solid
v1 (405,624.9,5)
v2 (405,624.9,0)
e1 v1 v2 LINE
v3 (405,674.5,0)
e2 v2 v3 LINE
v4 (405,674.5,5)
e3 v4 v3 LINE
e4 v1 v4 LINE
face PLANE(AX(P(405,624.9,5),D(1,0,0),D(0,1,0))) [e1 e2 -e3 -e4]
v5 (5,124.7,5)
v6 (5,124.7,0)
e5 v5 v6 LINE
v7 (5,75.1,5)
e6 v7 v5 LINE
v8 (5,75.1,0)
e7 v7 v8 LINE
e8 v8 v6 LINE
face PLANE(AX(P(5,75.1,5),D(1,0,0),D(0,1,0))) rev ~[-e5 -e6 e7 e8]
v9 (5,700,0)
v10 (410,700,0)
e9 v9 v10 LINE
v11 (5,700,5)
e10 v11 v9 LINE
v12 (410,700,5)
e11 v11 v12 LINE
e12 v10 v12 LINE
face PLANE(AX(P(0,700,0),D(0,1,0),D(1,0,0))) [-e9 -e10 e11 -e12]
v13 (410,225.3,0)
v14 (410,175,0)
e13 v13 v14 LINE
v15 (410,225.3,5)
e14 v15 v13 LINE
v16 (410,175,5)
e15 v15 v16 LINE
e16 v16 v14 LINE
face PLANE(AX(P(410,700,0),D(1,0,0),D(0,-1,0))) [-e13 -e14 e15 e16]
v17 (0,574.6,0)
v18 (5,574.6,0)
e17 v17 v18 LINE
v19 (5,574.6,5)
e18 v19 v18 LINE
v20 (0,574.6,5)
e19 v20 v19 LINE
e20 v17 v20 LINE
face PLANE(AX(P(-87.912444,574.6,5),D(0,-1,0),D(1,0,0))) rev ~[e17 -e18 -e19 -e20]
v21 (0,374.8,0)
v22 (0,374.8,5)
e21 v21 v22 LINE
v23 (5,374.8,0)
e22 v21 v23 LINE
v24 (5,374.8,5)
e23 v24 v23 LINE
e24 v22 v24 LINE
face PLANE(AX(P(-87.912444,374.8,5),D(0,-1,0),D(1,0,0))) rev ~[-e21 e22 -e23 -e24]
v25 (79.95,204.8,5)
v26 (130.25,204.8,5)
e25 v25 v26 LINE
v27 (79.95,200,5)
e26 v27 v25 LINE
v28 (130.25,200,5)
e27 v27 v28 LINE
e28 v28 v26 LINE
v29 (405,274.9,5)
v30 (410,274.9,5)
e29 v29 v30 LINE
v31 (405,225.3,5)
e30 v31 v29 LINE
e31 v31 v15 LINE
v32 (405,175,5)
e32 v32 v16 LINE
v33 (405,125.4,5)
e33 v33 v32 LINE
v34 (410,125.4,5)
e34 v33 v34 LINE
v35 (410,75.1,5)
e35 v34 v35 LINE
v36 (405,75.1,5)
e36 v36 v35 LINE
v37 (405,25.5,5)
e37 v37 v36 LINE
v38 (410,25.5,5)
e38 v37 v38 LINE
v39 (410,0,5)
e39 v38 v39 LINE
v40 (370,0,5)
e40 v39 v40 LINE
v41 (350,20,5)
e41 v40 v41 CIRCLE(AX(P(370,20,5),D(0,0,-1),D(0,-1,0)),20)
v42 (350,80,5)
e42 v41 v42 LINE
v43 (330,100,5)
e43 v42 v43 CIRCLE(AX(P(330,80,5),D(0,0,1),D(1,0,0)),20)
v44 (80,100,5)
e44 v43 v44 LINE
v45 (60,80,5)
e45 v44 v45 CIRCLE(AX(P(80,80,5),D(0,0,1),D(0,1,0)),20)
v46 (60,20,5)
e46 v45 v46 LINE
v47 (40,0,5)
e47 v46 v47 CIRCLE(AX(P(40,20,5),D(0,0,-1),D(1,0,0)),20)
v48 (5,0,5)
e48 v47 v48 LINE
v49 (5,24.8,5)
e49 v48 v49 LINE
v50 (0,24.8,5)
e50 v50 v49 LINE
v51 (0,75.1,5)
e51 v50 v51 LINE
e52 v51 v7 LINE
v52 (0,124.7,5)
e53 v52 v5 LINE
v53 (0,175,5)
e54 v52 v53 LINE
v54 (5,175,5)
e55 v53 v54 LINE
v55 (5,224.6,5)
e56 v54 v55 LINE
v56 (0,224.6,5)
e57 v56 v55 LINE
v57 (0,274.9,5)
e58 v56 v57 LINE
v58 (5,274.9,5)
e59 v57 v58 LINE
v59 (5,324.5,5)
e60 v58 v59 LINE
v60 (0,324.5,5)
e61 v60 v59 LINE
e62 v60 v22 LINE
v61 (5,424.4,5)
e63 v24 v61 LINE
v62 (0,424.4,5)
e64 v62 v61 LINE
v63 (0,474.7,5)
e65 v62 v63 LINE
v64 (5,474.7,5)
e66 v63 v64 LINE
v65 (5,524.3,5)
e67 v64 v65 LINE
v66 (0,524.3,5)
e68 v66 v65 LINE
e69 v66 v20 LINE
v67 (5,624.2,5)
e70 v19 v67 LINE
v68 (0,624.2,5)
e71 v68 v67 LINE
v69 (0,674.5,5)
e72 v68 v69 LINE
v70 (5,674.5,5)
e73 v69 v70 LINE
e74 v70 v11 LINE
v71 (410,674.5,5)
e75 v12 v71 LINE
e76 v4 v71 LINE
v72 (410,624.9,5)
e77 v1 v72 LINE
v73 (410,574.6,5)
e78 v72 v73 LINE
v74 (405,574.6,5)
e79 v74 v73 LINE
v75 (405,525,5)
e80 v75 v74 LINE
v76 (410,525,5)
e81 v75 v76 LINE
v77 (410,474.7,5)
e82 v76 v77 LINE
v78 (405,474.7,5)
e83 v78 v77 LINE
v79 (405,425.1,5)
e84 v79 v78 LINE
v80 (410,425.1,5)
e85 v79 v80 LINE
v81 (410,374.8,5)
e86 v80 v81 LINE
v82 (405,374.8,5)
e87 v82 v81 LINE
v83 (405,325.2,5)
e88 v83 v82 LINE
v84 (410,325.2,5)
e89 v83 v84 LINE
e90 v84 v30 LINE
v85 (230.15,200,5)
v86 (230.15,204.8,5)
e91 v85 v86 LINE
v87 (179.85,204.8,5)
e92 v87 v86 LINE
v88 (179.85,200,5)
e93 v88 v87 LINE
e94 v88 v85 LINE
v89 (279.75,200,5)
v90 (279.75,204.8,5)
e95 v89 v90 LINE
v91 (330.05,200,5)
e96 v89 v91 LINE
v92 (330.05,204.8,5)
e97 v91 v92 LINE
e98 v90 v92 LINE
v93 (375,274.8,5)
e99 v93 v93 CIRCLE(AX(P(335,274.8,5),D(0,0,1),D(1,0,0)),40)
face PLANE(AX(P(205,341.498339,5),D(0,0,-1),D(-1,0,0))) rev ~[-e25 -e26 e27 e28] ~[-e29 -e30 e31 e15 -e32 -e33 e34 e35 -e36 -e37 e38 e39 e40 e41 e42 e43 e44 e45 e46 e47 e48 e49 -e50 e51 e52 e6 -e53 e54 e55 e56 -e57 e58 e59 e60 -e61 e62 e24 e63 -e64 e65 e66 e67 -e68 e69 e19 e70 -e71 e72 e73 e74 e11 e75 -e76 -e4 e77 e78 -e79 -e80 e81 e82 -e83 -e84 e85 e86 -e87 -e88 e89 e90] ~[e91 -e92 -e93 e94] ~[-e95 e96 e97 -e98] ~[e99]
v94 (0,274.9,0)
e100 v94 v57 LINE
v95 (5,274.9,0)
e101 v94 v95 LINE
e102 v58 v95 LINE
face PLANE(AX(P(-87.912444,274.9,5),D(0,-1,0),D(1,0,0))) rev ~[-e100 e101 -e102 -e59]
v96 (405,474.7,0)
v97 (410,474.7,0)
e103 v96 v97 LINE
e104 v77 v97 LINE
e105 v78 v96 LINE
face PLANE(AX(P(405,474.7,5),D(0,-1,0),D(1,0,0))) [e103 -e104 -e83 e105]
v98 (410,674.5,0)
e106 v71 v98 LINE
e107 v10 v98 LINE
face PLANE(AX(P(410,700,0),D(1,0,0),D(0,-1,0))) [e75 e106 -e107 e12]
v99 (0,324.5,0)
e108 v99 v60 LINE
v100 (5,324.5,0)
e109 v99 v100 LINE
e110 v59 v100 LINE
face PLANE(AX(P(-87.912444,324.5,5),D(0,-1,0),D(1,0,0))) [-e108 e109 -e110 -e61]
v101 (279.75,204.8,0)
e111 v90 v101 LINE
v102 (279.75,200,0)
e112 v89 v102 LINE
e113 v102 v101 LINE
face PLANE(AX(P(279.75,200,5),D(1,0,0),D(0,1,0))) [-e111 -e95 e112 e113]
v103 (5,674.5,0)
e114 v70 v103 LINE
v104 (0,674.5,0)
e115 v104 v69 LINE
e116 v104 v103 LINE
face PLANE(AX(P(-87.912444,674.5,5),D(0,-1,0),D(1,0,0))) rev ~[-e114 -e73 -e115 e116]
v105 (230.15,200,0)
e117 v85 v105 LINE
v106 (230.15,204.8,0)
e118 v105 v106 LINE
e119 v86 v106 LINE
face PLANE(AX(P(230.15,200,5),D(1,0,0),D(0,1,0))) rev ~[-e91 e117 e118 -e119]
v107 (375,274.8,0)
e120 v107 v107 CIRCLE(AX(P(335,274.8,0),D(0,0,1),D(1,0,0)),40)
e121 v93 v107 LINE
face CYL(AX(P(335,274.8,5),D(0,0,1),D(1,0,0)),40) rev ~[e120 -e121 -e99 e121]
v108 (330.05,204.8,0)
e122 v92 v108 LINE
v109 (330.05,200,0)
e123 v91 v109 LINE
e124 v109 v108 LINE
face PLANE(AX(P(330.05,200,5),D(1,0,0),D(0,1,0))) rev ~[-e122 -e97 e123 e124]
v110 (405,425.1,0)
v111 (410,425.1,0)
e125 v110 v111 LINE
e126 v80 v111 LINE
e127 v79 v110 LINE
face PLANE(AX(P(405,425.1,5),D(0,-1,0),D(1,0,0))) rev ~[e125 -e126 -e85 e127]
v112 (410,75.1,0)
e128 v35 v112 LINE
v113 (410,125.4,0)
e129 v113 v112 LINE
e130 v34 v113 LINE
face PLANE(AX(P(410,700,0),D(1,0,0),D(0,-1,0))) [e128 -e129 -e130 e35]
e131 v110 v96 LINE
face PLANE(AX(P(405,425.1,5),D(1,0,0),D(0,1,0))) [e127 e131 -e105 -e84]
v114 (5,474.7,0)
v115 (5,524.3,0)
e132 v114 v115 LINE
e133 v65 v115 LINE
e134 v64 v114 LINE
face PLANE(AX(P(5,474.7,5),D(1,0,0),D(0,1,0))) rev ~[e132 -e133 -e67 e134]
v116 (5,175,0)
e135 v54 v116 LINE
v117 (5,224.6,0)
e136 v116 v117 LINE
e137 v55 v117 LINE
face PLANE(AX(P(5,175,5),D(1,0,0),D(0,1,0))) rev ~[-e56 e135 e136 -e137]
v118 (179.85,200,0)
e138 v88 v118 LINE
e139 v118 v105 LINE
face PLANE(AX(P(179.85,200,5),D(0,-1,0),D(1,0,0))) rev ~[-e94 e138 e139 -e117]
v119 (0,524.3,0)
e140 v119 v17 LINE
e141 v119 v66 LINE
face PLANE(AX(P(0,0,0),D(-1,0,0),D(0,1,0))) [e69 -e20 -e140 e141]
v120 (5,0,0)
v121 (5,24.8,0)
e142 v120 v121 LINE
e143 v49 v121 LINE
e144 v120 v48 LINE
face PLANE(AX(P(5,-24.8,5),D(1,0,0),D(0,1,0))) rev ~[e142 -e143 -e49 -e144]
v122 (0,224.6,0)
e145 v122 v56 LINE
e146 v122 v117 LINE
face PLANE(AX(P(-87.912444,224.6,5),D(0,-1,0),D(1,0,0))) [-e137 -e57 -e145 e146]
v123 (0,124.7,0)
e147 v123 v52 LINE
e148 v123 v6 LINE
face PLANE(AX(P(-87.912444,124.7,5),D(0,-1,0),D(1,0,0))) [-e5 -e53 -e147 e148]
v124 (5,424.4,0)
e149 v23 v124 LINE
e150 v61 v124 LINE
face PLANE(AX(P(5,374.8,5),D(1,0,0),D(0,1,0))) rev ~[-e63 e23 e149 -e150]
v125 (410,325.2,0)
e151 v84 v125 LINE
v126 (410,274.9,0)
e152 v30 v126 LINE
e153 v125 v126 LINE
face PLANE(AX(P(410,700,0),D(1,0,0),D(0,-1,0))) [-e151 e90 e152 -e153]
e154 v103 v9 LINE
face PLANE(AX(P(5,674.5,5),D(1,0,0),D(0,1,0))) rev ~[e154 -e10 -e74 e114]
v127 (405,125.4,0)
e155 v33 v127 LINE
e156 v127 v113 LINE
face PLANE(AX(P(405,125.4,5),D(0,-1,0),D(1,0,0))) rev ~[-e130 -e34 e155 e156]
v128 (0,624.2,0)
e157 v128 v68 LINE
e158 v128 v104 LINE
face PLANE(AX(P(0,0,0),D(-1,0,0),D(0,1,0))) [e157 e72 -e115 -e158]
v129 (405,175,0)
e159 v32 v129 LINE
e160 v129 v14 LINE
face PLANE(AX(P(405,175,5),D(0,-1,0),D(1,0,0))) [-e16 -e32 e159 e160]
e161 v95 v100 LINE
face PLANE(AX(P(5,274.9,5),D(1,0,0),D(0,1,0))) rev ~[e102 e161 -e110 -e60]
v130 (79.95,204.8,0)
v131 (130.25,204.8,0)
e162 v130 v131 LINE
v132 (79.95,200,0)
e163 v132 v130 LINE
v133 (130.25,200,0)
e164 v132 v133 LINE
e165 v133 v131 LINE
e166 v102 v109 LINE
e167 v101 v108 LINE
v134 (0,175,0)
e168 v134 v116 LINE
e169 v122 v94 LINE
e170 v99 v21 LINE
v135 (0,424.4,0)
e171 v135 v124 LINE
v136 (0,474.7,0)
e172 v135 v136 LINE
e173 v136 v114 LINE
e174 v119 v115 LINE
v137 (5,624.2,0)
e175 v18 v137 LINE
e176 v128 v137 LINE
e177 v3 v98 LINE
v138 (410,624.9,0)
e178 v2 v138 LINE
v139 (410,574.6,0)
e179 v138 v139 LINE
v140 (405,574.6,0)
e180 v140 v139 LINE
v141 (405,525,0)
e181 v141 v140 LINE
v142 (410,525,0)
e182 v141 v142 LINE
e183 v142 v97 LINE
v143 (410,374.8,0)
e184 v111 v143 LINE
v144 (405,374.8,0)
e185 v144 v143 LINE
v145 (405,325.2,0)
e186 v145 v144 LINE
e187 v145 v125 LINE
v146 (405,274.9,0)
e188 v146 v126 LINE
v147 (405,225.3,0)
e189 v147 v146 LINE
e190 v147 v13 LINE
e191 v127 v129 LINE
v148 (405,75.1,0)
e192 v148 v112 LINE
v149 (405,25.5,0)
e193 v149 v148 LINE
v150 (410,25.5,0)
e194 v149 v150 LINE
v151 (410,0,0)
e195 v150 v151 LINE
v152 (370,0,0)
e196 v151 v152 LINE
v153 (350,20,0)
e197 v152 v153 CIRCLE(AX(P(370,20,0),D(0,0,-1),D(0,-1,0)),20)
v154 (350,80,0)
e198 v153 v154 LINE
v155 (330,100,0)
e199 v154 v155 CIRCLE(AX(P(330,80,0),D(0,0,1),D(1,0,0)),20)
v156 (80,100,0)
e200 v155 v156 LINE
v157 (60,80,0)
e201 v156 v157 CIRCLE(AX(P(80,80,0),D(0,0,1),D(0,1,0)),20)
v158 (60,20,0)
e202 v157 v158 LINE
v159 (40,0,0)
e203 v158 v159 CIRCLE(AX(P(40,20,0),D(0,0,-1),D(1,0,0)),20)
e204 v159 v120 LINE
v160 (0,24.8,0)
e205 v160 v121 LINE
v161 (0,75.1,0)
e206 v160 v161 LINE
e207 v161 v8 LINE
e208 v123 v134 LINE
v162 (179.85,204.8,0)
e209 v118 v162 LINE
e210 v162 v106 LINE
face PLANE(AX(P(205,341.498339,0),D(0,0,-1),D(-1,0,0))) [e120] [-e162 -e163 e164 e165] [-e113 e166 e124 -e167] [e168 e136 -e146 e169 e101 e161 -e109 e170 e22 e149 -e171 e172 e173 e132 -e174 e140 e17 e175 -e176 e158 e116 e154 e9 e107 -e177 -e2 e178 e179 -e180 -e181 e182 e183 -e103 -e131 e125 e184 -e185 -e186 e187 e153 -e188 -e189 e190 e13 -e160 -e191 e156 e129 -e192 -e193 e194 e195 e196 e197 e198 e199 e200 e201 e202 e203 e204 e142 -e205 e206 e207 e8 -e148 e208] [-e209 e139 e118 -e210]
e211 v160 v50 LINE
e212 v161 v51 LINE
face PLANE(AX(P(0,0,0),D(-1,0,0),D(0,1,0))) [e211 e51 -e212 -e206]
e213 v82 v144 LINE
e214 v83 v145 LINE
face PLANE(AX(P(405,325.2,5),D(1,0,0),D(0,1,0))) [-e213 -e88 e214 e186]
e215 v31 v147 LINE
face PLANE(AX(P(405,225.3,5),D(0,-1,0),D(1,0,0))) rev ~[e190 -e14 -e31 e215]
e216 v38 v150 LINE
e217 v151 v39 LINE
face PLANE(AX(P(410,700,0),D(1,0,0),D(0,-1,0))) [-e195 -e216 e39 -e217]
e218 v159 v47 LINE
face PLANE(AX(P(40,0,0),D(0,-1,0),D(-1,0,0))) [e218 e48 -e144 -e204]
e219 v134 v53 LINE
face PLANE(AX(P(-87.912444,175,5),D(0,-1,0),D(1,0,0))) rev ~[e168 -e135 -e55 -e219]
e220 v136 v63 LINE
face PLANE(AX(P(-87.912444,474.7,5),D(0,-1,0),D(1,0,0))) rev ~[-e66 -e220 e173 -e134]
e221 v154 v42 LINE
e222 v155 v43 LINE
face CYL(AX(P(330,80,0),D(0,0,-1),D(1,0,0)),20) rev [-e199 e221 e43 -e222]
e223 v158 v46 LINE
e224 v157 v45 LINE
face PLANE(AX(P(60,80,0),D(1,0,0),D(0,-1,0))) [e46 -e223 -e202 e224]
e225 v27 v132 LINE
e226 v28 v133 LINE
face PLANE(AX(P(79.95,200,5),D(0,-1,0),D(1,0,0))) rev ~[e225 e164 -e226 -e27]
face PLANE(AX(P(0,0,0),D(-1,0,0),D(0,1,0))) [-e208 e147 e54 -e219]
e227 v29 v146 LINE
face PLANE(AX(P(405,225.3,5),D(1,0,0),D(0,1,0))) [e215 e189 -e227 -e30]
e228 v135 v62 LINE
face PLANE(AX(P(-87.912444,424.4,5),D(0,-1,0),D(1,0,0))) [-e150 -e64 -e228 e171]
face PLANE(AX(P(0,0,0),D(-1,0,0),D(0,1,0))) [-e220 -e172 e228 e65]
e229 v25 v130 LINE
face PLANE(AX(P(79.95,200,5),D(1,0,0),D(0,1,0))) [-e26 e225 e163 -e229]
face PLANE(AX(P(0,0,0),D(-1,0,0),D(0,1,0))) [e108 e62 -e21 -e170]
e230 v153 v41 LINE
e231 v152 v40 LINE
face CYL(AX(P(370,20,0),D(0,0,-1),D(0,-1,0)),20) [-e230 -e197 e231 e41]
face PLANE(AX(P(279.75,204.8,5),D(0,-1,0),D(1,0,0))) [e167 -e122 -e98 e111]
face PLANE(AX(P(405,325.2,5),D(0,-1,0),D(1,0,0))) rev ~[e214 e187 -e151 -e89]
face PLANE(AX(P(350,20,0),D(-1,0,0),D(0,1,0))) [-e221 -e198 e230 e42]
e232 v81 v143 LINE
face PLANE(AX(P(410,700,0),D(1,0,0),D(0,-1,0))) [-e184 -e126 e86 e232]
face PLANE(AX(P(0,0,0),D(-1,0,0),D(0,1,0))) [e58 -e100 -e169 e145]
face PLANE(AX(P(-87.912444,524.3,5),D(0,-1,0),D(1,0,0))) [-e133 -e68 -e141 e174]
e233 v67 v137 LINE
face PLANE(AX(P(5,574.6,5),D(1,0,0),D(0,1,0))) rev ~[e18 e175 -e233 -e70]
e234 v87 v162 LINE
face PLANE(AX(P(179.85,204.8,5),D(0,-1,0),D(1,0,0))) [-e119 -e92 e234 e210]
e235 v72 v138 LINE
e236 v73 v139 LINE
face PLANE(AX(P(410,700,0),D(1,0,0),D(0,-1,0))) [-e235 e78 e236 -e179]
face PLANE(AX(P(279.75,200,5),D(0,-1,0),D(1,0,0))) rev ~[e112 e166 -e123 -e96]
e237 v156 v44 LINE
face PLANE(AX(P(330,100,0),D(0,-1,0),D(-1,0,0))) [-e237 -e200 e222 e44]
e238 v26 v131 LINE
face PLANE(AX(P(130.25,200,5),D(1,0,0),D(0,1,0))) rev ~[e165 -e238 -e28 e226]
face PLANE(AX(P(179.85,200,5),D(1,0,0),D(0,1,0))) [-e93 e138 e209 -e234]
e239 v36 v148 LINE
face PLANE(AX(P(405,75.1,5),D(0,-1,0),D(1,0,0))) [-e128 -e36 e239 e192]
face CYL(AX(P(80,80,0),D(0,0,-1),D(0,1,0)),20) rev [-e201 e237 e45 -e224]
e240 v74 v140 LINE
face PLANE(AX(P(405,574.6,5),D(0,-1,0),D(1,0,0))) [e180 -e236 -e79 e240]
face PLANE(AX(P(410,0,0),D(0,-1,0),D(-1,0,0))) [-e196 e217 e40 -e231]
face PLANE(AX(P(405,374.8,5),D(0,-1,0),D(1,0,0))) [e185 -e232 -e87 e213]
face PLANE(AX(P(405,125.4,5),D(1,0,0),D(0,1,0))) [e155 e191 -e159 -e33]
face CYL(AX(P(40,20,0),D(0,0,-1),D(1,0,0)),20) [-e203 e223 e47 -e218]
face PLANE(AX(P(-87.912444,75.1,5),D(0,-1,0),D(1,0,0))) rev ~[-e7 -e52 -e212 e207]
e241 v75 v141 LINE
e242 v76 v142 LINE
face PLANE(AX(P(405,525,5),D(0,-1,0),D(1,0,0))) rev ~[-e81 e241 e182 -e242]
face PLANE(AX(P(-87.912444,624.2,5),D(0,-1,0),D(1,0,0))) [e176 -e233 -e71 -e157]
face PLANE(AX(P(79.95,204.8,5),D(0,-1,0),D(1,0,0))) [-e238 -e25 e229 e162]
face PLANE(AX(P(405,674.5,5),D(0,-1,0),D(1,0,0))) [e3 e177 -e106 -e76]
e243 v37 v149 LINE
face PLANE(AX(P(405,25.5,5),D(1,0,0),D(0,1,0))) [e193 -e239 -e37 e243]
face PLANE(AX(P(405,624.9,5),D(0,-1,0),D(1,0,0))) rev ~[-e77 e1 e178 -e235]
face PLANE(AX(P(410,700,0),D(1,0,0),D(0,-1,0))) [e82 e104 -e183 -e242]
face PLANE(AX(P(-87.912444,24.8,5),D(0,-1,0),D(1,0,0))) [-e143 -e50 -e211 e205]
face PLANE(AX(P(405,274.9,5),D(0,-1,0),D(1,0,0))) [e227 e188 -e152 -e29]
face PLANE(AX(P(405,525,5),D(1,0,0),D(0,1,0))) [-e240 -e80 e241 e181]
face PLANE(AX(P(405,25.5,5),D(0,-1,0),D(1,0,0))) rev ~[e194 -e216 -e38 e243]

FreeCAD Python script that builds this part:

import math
import FreeCAD as App
import Part
import Sketcher

V = App.Vector
Q = App.Units.Quantity


def add_polygon(sketch, points):
    """Adds a closed chain of lines whose ends are joined by coincident constraints."""
    first, n = sketch.GeometryCount, len(points)
    for a, b in zip(points, points[1:] + points[:1]):
        sketch.addGeometry(Part.LineSegment(App.Vector(*a, 0), App.Vector(*b, 0)), False)
    for i in range(n):
        sketch.addConstraint(Sketcher.Constraint("Coincident", first + i, 2, first + (i + 1) % n, 1))

doc = App.newDocument("Part")
body = doc.addObject("PartDesign::Body", "Body")

sketch1 = body.newObject("Sketcher::SketchObject", "Sketch")
sketch1.AttachmentSupport = (doc.getObject("XY_Plane"), [""])
sketch1.MapMode = "FlatFace"
sketch1.addGeometry([
    Part.LineSegment(V(0, 700, 0), V(0, 0, 0)),
    Part.LineSegment(V(0, 0, 0), V(40, 0, 0)),
    Part.ArcOfCircle(Part.Circle(V(40, 20, 0), V(0, 0, 1), 20), math.radians(-90), math.radians(0)),
    Part.LineSegment(V(60, 20, 0), V(60, 80, 0)),
    Part.ArcOfCircle(Part.Circle(V(80, 80, 0), V(0, 0, 1), 20), math.radians(90), math.radians(180)),
    Part.LineSegment(V(80, 100, 0), V(330, 100, 0)),
    Part.ArcOfCircle(Part.Circle(V(330, 80, 0), V(0, 0, 1), 20), math.radians(0), math.radians(90)),
    Part.LineSegment(V(350, 80, 0), V(350, 20, 0)),
    Part.ArcOfCircle(Part.Circle(V(370, 20, 0), V(0, 0, 1), 20), math.radians(180), math.radians(270)),
    Part.LineSegment(V(370, 0, 0), V(410, 0, 0)),
    Part.LineSegment(V(410, 0, 0), V(410, 700, 0)),
    Part.LineSegment(V(410, 700, 0), V(0, 700, 0)),
], False)
sketch1.addConstraint([
    Sketcher.Constraint("Coincident", 0, 2, 1, 1),
    Sketcher.Constraint("Tangent", 1, 2, 2, 1),
    Sketcher.Constraint("Tangent", 2, 2, 3, 1),
    Sketcher.Constraint("Tangent", 3, 2, 4, 2),
    Sketcher.Constraint("Tangent", 4, 1, 5, 1),
    Sketcher.Constraint("Tangent", 5, 2, 6, 2),
    Sketcher.Constraint("Tangent", 6, 1, 7, 1),
    Sketcher.Constraint("Tangent", 7, 2, 8, 1),
    Sketcher.Constraint("Tangent", 8, 2, 9, 1),
    Sketcher.Constraint("Coincident", 9, 2, 10, 1),
    Sketcher.Constraint("Coincident", 10, 2, 11, 1),
    Sketcher.Constraint("Coincident", 11, 2, 0, 1),
    Sketcher.Constraint("Vertical", 0),
    Sketcher.Constraint("Horizontal", 1),
    Sketcher.Constraint("Vertical", 3),
    Sketcher.Constraint("Horizontal", 5),
    Sketcher.Constraint("Vertical", 7),
    Sketcher.Constraint("Horizontal", 9),
    Sketcher.Constraint("Vertical", 10),
    Sketcher.Constraint("Horizontal", 11),
    Sketcher.Constraint("Coincident", 0, 2, -1, 1),
    Sketcher.Constraint("Equal", 2, 4),
    Sketcher.Constraint("Equal", 4, 6),
    Sketcher.Constraint("Equal", 6, 8),
    Sketcher.Constraint("PointOnObject", 8, 2, -1),
    Sketcher.Constraint("Equal", 1, 9),
    Sketcher.Constraint("Radius", 2, Q("20 mm")),
    Sketcher.Constraint("DistanceX", 1, 1, 1, 2, Q("40 mm")),
    Sketcher.Constraint("DistanceX", 5, 1, 5, 2, Q("250 mm")),
    Sketcher.Constraint("DistanceY", 0, 2, 0, 1, Q("700 mm")),
    Sketcher.Constraint("DistanceY", 3, 1, 3, 2, Q("60 mm")),
])
pad1 = body.newObject("PartDesign::Pad", "Pad")
pad1.Profile = sketch1
pad1.Length = 5

sketch2 = body.newObject("Sketcher::SketchObject", "Sketch001")
sketch2.AttachmentSupport = (doc.getObject("XY_Plane"), [""])
sketch2.MapMode = "FlatFace"
sketch2.AttachmentOffset = App.Placement(V(0, 0, 5), App.Rotation())
add_polygon(sketch2, [(80, 204.8), (80, 200), (130.2, 200), (130.2, 204.8)])
sketch2.addConstraint([
    Sketcher.Constraint("Vertical", 0),
    Sketcher.Constraint("Horizontal", 1),
    Sketcher.Constraint("Vertical", 2),
    Sketcher.Constraint("Horizontal", 3),
    Sketcher.Constraint("DistanceX", 1, 1, 1, 2, Q("50.3 mm")),
    Sketcher.Constraint("DistanceY", 0, 2, 0, 1, Q("4.8 mm")),
    Sketcher.Constraint("DistanceY", -1, 1, 0, 2, Q("200 mm")),
    Sketcher.Constraint("DistanceX", -1, 1, 0, 2, Q("79.95 mm")),
])
pocket1 = body.newObject("PartDesign::Pocket", "Pocket")
pocket1.Profile = sketch2
pocket1.Length = 5
doc.recompute()

linearpattern = body.newObject("PartDesign::LinearPattern", "LinearPattern")
linearpattern.Originals = [pocket1]
linearpattern.Direction = (doc.getObject("X_Axis"), [""])
linearpattern.Mode = "offset"
linearpattern.Offset = 99.9
linearpattern.Occurrences = 3
body.Tip = linearpattern

sketch3 = body.newObject("Sketcher::SketchObject", "Sketch002")
sketch3.AttachmentSupport = (doc.getObject("XY_Plane"), [""])
sketch3.MapMode = "FlatFace"
sketch3.AttachmentOffset = App.Placement(V(0, 0, 5), App.Rotation())
add_polygon(sketch3, [(-88, 724), (-88, 674), (5, 674), (5, 724)])
sketch3.addConstraint([
    Sketcher.Constraint("Vertical", 0),
    Sketcher.Constraint("Horizontal", 1),
    Sketcher.Constraint("Vertical", 2),
    Sketcher.Constraint("Horizontal", 3),
    Sketcher.Constraint("DistanceY", 0, 2, 0, 1, Q("49.6 mm")),
    Sketcher.Constraint("DistanceX", -1, 1, 1, 2, Q("5 mm")),
    Sketcher.Constraint("DistanceY", -1, 1, 0, 2, Q("674.5 mm")),
    Sketcher.Constraint("DistanceX", 1, 1, 1, 2, Q("92.912444 mm")),
])
pocket2 = body.newObject("PartDesign::Pocket", "Pocket001")
pocket2.Profile = sketch3
pocket2.Length = 5
doc.recompute()

linearpattern2 = body.newObject("PartDesign::LinearPattern", "LinearPattern001")
linearpattern2.Originals = [pocket2]
linearpattern2.Direction = (doc.getObject("Y_Axis"), [""])
linearpattern2.Mode = "offset"
linearpattern2.Offset = 99.9
linearpattern2.Occurrences = 8
linearpattern2.Reversed = True
body.Tip = linearpattern2

sketch4 = body.newObject("Sketcher::SketchObject", "Sketch003")
sketch4.AttachmentSupport = (doc.getObject("XY_Plane"), [""])
sketch4.MapMode = "FlatFace"
sketch4.AttachmentOffset = App.Placement(V(0, 0, 5), App.Rotation())
add_polygon(sketch4, [(405, 674), (405, 625), (491, 625), (491, 674)])
sketch4.addConstraint([
    Sketcher.Constraint("Vertical", 0),
    Sketcher.Constraint("Horizontal", 1),
    Sketcher.Constraint("Vertical", 2),
    Sketcher.Constraint("Horizontal", 3),
    Sketcher.Constraint("DistanceY", 0, 2, 0, 1, Q("49.6 mm")),
    Sketcher.Constraint("DistanceX", -1, 1, 0, 2, Q("405 mm")),
    Sketcher.Constraint("DistanceY", -1, 1, 0, 2, Q("624.9 mm")),
    Sketcher.Constraint("DistanceX", 1, 1, 1, 2, Q("86.468005 mm")),
])
pocket3 = body.newObject("PartDesign::Pocket", "Pocket002")
pocket3.Profile = sketch4
pocket3.Length = 5
doc.recompute()

linearpattern3 = body.newObject("PartDesign::LinearPattern", "LinearPattern002")
linearpattern3.Originals = [pocket3]
linearpattern3.Direction = (doc.getObject("Y_Axis"), [""])
linearpattern3.Mode = "offset"
linearpattern3.Offset = 99.9
linearpattern3.Occurrences = 7
linearpattern3.Reversed = True
body.Tip = linearpattern3

sketch5 = body.newObject("Sketcher::SketchObject", "Sketch004")
sketch5.AttachmentSupport = (doc.getObject("XY_Plane"), [""])
sketch5.MapMode = "FlatFace"
sketch5.AttachmentOffset = App.Placement(V(0, 0, 5), App.Rotation())
sketch5.addGeometry(Part.Circle(V(335, 275, 0), V(0, 0, 1), 40), False)
sketch5.addConstraint([
    Sketcher.Constraint("Diameter", 0, Q("80 mm")),
    Sketcher.Constraint("DistanceX", -1, 1, 0, 3, Q("335 mm")),
    Sketcher.Constraint("DistanceY", -1, 1, 0, 3, Q("274.8 mm")),
])
pocket4 = body.newObject("PartDesign::Pocket", "Pocket003")
pocket4.Profile = sketch5
pocket4.Length = 10

doc.recompute()
